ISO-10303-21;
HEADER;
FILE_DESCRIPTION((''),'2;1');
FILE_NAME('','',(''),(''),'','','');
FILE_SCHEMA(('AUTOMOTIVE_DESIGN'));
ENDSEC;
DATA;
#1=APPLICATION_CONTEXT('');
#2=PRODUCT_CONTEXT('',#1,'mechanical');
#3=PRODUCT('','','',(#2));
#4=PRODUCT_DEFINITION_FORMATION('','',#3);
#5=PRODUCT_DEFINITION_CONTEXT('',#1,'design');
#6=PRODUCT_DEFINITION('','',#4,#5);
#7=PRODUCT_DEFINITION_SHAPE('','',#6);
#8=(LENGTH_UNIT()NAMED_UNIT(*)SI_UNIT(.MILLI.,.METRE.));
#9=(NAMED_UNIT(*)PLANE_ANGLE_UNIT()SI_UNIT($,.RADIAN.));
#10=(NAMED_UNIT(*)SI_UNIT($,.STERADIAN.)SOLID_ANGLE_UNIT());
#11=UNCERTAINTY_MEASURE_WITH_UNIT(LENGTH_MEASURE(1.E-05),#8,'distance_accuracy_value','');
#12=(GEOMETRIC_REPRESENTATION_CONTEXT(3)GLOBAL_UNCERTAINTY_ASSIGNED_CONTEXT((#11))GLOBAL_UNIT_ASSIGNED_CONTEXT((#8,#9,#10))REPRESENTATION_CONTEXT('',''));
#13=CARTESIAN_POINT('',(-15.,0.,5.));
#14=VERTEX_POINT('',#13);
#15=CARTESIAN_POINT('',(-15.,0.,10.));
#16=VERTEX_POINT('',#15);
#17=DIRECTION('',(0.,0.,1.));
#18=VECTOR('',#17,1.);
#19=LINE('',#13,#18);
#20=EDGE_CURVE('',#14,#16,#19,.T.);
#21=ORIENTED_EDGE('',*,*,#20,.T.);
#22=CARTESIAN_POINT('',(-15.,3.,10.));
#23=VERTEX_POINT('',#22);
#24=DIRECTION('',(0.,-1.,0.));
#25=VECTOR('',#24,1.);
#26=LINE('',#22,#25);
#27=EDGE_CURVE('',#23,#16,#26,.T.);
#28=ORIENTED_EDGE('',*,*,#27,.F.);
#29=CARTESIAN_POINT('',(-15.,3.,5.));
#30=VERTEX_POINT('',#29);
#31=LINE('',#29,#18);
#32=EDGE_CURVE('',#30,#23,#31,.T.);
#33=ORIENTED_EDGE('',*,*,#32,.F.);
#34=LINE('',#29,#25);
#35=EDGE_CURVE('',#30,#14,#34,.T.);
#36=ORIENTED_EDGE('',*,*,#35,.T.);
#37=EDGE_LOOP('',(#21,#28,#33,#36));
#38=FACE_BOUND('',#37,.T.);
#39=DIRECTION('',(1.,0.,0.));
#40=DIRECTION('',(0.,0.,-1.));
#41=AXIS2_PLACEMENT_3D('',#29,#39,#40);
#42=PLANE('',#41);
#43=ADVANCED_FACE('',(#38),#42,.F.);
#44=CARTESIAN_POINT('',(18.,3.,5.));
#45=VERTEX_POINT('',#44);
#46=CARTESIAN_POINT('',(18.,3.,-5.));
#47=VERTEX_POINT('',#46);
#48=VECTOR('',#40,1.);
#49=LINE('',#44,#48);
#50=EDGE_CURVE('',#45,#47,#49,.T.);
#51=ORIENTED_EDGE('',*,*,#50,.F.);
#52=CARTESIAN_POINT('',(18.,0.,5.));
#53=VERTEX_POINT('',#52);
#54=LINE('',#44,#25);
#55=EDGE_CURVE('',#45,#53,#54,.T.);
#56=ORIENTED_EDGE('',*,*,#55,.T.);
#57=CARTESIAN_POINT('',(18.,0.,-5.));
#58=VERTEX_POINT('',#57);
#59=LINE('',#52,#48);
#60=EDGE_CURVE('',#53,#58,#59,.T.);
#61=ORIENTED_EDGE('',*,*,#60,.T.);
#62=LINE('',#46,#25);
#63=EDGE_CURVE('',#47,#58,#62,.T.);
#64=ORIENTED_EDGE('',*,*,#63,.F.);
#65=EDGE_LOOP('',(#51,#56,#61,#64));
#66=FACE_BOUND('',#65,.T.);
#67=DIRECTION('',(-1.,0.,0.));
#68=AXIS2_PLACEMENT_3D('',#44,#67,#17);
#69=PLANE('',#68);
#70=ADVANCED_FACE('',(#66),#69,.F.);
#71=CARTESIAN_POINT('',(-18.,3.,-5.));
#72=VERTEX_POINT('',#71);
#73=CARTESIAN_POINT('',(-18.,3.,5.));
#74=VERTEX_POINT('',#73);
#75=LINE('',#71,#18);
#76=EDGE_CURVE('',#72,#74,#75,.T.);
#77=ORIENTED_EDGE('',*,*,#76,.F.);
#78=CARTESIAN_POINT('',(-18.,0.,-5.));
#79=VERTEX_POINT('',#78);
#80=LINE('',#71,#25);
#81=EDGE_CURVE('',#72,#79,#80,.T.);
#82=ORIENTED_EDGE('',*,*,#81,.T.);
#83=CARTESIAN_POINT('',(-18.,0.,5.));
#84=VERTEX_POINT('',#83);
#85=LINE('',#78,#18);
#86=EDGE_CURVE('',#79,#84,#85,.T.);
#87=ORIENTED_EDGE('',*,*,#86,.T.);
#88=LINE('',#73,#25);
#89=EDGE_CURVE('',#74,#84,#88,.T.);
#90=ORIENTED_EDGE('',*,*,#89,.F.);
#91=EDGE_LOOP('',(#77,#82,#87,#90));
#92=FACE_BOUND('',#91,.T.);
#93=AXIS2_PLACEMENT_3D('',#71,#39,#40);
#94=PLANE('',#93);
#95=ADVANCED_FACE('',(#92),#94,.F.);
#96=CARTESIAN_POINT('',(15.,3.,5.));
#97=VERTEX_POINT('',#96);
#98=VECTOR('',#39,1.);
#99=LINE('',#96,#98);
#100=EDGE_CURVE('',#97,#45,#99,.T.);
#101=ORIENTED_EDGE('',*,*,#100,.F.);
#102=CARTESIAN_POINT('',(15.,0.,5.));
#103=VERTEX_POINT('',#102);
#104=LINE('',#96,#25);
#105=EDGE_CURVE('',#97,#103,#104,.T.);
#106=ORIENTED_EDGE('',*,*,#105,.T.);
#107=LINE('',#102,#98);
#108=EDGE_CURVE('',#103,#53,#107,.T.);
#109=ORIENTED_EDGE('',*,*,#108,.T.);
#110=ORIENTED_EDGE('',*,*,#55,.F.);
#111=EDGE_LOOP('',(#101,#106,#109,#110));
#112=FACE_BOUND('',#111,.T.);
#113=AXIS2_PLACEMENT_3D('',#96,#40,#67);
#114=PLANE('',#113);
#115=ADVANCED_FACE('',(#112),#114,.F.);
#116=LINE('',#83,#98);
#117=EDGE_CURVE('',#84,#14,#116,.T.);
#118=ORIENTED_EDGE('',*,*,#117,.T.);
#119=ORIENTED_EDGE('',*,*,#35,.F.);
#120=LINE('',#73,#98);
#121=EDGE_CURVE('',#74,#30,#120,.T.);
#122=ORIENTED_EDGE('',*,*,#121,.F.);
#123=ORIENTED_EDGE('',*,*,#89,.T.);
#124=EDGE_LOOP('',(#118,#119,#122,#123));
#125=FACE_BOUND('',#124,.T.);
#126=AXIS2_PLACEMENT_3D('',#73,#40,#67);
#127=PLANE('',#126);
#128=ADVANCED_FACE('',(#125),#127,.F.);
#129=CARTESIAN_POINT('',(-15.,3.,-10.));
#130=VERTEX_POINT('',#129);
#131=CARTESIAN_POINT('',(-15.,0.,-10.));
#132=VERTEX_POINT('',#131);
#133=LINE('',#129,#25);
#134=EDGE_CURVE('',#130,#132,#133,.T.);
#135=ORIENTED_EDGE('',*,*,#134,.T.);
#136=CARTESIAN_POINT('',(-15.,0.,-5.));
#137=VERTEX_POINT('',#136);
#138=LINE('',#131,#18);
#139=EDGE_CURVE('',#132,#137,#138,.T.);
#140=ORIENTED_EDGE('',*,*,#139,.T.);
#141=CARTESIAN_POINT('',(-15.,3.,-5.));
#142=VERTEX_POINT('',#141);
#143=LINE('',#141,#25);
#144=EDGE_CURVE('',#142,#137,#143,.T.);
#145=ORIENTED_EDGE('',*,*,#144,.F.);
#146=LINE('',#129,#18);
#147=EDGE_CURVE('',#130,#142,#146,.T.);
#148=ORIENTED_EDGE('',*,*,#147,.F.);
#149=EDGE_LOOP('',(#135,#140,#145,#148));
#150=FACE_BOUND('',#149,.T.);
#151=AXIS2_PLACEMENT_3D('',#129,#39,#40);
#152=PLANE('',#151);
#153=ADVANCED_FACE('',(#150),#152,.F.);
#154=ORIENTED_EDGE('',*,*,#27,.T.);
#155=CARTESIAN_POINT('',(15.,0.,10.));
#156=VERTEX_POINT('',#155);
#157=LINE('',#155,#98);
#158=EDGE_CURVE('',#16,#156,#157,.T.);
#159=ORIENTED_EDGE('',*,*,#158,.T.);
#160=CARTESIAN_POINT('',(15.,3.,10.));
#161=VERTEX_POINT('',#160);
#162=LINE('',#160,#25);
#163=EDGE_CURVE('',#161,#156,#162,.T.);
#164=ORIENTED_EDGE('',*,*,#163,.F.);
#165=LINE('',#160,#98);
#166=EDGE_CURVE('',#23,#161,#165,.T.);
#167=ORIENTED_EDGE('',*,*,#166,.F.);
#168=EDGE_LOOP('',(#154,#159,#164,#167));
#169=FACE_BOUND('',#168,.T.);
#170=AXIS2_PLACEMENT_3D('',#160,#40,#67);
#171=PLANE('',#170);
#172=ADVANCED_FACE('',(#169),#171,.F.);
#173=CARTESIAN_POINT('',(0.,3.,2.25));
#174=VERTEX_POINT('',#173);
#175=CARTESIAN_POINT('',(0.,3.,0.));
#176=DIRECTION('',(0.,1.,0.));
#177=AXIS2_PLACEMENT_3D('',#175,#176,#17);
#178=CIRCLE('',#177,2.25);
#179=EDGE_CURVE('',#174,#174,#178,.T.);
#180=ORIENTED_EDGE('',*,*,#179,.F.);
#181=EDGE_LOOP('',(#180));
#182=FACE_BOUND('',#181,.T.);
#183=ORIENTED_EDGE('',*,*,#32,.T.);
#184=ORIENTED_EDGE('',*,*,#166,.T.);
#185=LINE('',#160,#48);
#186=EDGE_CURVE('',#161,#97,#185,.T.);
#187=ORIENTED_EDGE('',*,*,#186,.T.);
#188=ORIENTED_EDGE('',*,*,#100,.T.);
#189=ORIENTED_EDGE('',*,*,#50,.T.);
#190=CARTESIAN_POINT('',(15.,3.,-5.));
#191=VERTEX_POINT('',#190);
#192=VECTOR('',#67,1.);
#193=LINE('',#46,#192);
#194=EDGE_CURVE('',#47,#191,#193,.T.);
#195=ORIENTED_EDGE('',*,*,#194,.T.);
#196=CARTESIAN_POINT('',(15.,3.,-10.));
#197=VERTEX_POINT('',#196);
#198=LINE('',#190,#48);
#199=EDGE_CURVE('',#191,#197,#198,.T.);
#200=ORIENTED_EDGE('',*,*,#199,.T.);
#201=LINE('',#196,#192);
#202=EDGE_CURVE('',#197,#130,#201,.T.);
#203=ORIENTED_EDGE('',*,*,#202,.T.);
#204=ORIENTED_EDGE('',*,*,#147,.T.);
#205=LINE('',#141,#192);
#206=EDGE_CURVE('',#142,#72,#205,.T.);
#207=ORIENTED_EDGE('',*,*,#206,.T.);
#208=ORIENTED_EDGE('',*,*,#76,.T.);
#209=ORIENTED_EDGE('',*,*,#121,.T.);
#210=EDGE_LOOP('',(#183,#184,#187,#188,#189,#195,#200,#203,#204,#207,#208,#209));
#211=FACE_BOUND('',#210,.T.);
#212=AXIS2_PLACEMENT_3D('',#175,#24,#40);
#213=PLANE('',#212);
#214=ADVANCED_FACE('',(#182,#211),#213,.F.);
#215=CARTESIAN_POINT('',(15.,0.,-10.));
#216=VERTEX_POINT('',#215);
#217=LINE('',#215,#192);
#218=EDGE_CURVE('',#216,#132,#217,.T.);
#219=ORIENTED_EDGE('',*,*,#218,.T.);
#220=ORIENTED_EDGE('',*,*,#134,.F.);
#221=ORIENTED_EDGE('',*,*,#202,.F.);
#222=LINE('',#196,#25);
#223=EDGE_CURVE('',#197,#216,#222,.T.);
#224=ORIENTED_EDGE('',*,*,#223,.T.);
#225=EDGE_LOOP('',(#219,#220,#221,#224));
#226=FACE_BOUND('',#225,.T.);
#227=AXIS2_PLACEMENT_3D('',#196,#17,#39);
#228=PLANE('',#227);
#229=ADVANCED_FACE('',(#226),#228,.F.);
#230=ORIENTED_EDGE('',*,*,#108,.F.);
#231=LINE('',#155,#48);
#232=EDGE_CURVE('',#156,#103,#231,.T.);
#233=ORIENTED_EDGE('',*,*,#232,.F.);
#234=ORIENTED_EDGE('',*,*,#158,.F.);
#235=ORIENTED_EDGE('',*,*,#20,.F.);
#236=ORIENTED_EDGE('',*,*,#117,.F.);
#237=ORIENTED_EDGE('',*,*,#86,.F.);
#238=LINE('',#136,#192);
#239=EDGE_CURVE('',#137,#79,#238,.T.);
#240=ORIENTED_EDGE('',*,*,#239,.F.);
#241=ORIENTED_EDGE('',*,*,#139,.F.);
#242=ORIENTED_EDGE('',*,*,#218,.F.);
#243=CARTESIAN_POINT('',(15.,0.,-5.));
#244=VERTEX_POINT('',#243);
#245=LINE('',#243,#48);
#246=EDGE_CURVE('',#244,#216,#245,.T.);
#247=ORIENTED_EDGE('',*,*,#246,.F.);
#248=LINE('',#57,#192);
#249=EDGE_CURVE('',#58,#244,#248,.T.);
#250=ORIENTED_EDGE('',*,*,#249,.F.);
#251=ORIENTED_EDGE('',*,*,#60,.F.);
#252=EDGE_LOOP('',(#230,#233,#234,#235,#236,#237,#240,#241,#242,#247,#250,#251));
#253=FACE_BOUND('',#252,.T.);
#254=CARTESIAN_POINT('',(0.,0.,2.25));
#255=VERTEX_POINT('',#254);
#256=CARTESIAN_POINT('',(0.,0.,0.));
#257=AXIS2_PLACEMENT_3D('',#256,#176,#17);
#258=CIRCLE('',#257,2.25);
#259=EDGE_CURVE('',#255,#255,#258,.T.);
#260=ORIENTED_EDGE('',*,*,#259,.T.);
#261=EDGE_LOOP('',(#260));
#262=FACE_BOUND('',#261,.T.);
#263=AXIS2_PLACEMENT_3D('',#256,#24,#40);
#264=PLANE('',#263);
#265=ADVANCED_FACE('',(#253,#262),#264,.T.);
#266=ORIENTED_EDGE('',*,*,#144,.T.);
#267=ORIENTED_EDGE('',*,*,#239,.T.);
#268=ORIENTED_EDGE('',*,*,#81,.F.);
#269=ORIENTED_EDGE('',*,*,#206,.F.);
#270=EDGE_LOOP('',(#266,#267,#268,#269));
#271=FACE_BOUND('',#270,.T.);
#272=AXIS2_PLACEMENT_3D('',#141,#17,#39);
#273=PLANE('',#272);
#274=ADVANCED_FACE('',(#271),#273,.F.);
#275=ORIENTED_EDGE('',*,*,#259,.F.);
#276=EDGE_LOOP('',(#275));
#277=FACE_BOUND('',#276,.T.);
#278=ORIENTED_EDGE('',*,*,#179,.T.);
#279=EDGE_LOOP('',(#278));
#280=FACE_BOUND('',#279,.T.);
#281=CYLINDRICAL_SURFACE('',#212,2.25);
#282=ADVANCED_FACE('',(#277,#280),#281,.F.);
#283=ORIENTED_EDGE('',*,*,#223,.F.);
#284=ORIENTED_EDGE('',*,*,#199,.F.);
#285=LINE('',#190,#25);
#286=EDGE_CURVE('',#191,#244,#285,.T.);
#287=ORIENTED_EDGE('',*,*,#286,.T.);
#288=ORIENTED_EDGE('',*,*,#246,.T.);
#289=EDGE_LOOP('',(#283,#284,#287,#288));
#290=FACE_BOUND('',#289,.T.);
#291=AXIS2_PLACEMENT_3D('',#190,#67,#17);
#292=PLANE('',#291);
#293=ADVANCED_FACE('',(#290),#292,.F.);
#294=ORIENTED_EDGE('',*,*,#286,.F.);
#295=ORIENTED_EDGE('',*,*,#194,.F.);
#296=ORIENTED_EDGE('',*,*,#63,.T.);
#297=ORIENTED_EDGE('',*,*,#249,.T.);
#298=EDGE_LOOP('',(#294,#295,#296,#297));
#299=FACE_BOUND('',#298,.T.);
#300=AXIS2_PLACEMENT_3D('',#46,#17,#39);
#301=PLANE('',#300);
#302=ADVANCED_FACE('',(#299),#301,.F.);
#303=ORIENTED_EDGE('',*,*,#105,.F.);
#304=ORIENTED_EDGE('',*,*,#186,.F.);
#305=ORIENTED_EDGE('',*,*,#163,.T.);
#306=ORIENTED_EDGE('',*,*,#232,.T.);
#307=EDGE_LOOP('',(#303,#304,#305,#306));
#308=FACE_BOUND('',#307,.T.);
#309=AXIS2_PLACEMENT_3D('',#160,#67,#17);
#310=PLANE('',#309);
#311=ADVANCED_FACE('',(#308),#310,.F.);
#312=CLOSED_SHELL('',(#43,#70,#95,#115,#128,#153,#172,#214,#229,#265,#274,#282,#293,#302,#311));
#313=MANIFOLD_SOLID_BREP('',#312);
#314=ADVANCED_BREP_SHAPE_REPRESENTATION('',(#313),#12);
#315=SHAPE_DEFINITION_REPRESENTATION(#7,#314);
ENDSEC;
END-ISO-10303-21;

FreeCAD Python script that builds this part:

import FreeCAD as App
import Part
import Sketcher


def add_polygon(sketch, points):
    """Adds a closed chain of lines whose ends are joined by coincident constraints."""
    first, n = sketch.GeometryCount, len(points)
    for a, b in zip(points, points[1:] + points[:1]):
        sketch.addGeometry(Part.LineSegment(App.Vector(*a, 0), App.Vector(*b, 0)), False)
    for i in range(n):
        sketch.addConstraint(Sketcher.Constraint("Coincident", first + i, 2, first + (i + 1) % n, 1))

doc = App.newDocument("Part")
params = doc.addObject("Spreadsheet::Sheet", "Params")
for row, (alias, value) in enumerate([
    ("sketch1_diameter", "4.5 mm"),
    ("sketch1_width", "3 mm"),
    ("sketch1_width2", "30 mm"),
    ("sketch1_height", "5 mm"),
    ("sketch1_height2", "10 mm"),
    ("pad1_length", "3 mm"),
], start=1):
    params.set(f"A{row}", alias)
    params.set(f"B{row}", "=" + value)
    params.setAlias(f"B{row}", alias)

body = doc.addObject("PartDesign::Body", "Body")

# Sketch on XZ plane
sketch1 = body.newObject("Sketcher::SketchObject", "Sketch")
sketch1.AttachmentSupport = (doc.getObject("XZ_Plane"), [""])
sketch1.MapMode = "FlatFace"
add_polygon(sketch1, [(-15, -10), (-15, -5), (-18, -5), (-18, 5), (-15, 5), (-15, 10), (15, 10), (15, 5), (18, 5), (18, -5), (15, -5), (15, -10)])  # lines 0-11
sketch1.addGeometry(Part.Circle(App.Vector(0, 0, 0), App.Vector(0, 0, 1), 2.2), False)  # 12
sketch1.addConstraint(Sketcher.Constraint("Vertical", 0))
sketch1.addConstraint(Sketcher.Constraint("Horizontal", 1))
sketch1.addConstraint(Sketcher.Constraint("Vertical", 2))
sketch1.addConstraint(Sketcher.Constraint("Horizontal", 3))
sketch1.addConstraint(Sketcher.Constraint("Vertical", 4))
sketch1.addConstraint(Sketcher.Constraint("Horizontal", 5))
sketch1.addConstraint(Sketcher.Constraint("Vertical", 6))
sketch1.addConstraint(Sketcher.Constraint("Horizontal", 7))
sketch1.addConstraint(Sketcher.Constraint("Vertical", 8))
sketch1.addConstraint(Sketcher.Constraint("Horizontal", 9))
sketch1.addConstraint(Sketcher.Constraint("Vertical", 10))
sketch1.addConstraint(Sketcher.Constraint("Horizontal", 11))
sketch1.addConstraint(Sketcher.Constraint("Coincident", 12, 3, -1, 1))
sketch1.addConstraint(Sketcher.Constraint("Symmetric", 0, 2, 6, 2, -1, 1))
sketch1.addConstraint(Sketcher.Constraint("Symmetric", 2, 2, 8, 2, -1, 1))
sketch1.addConstraint(Sketcher.Constraint("Symmetric", 4, 2, 10, 2, -1, 1))
sketch1.addConstraint(Sketcher.Constraint("Symmetric", 3, 2, 6, 2, -2))
sketch1.addConstraint(Sketcher.Constraint("Diameter", 12, 4.5))
sketch1.addConstraint(Sketcher.Constraint("DistanceX", 1, 2, 1, 1, 3.0))
sketch1.addConstraint(Sketcher.Constraint("DistanceX", 5, 1, 5, 2, 30.0))
sketch1.addConstraint(Sketcher.Constraint("DistanceY", 0, 1, 0, 2, 5.0))
sketch1.addConstraint(Sketcher.Constraint("DistanceY", 2, 1, 2, 2, 10.0))
sketch1.setExpression("Constraints[29]", "Params.sketch1_diameter")
sketch1.setExpression("Constraints[30]", "Params.sketch1_width")
sketch1.setExpression("Constraints[31]", "Params.sketch1_width2")
sketch1.setExpression("Constraints[32]", "Params.sketch1_height")
sketch1.setExpression("Constraints[33]", "Params.sketch1_height2")
pad1 = body.newObject("PartDesign::Pad", "Pad")
pad1.Profile = sketch1
pad1.setExpression("Length", "Params.pad1_length")
pad1.Reversed = True

doc.recompute()
